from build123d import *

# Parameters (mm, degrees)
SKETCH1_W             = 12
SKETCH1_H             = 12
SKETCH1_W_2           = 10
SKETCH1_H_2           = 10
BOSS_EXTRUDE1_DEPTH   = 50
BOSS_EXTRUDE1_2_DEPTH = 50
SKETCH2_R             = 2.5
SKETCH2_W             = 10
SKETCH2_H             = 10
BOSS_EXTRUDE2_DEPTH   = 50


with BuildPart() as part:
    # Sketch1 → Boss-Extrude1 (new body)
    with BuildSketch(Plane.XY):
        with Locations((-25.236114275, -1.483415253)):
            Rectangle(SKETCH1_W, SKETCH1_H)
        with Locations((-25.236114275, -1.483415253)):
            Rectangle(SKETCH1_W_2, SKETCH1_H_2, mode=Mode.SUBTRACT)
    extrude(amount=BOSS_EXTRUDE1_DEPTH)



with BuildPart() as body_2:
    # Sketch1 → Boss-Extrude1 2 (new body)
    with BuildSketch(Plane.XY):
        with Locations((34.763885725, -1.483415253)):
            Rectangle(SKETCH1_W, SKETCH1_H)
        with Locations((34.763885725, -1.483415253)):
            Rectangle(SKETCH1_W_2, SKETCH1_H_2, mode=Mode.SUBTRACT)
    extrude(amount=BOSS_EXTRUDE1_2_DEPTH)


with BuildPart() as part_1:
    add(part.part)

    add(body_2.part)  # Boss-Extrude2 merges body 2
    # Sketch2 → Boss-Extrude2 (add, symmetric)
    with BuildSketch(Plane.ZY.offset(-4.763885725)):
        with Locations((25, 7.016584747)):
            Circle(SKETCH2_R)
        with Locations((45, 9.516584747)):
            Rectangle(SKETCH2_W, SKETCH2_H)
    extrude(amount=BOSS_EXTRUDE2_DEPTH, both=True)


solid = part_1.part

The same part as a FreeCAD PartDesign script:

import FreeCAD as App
import Part
import Sketcher
from FreeCAD import Vector


def add_polygon(sketch, points):
    """Adds a closed chain of lines whose ends are joined by coincident constraints."""
    first, n = sketch.GeometryCount, len(points)
    for a, b in zip(points, points[1:] + points[:1]):
        sketch.addGeometry(Part.LineSegment(App.Vector(*a, 0), App.Vector(*b, 0)), False)
    for i in range(n):
        sketch.addConstraint(Sketcher.Constraint("Coincident", first + i, 2, first + (i + 1) % n, 1))

doc = App.newDocument("Part")
body = doc.addObject("PartDesign::Body", "Body")

# Sketch on XY plane
sketch1 = body.newObject("Sketcher::SketchObject", "Sketch")
sketch1.AttachmentSupport = (doc.getObject("XY_Plane"), [""])
sketch1.MapMode = "FlatFace"
add_polygon(sketch1, [(-31.236114, 4.516585), (-31.236114, -7.483415), (-19.236114, -7.483415), (-19.236114, 4.516585)])  # lines 0-3
add_polygon(sketch1, [(-20.236114, -6.483415), (-30.236114, -6.483415), (-30.236114, 3.516585), (-20.236114, 3.516585)])  # lines 4-7
sketch1.addConstraint(Sketcher.Constraint("Vertical", 0))
sketch1.addConstraint(Sketcher.Constraint("Horizontal", 1))
sketch1.addConstraint(Sketcher.Constraint("Vertical", 2))
sketch1.addConstraint(Sketcher.Constraint("Horizontal", 3))
sketch1.addConstraint(Sketcher.Constraint("Horizontal", 4))
sketch1.addConstraint(Sketcher.Constraint("Vertical", 5))
sketch1.addConstraint(Sketcher.Constraint("Horizontal", 6))
sketch1.addConstraint(Sketcher.Constraint("Vertical", 7))
sketch1.addConstraint(Sketcher.Constraint("Equal", 3, 0))
sketch1.addConstraint(Sketcher.Constraint("Equal", 6, 5))
sketch1.addConstraint(Sketcher.Constraint("DistanceX", 1, 1, 1, 2, 12.0))
sketch1.addConstraint(Sketcher.Constraint("DistanceX", 4, 2, 4, 1, 10.0))
sketch1.addConstraint(Sketcher.Constraint("DistanceX", 0, 2, 4, 2, 1.0))
sketch1.addConstraint(Sketcher.Constraint("DistanceY", 0, 2, 4, 2, 1.0))
sketch1.addConstraint(Sketcher.Constraint("DistanceX", 0, 2, -1, 1, 31.236114))
sketch1.addConstraint(Sketcher.Constraint("DistanceY", 0, 2, -1, 1, 7.483415))
pad1 = body.newObject("PartDesign::Pad", "Pad")
pad1.Profile = sketch1
pad1.Length = 50
body2 = doc.addObject("PartDesign::Body", "Body001")

# Sketch on XY plane
sketch2 = body2.newObject("Sketcher::SketchObject", "Sketch001")
sketch2.AttachmentSupport = (doc.getObject("XY_Plane001"), [""])
sketch2.MapMode = "FlatFace"
add_polygon(sketch2, [(28.763886, 4.516585), (28.763886, -7.483415), (40.763886, -7.483415), (40.763886, 4.516585)])  # lines 0-3
add_polygon(sketch2, [(39.763886, -6.483415), (29.763886, -6.483415), (29.763886, 3.516585), (39.763886, 3.516585)])  # lines 4-7
sketch2.addConstraint(Sketcher.Constraint("Vertical", 0))
sketch2.addConstraint(Sketcher.Constraint("Horizontal", 1))
sketch2.addConstraint(Sketcher.Constraint("Vertical", 2))
sketch2.addConstraint(Sketcher.Constraint("Horizontal", 3))
sketch2.addConstraint(Sketcher.Constraint("Horizontal", 4))
sketch2.addConstraint(Sketcher.Constraint("Vertical", 5))
sketch2.addConstraint(Sketcher.Constraint("Horizontal", 6))
sketch2.addConstraint(Sketcher.Constraint("Vertical", 7))
sketch2.addConstraint(Sketcher.Constraint("Equal", 3, 0))
sketch2.addConstraint(Sketcher.Constraint("Equal", 6, 5))
sketch2.addConstraint(Sketcher.Constraint("DistanceX", 1, 1, 1, 2, 12.0))
sketch2.addConstraint(Sketcher.Constraint("DistanceX", 4, 2, 4, 1, 10.0))
sketch2.addConstraint(Sketcher.Constraint("DistanceX", 0, 2, 4, 2, 1.0))
sketch2.addConstraint(Sketcher.Constraint("DistanceY", 0, 2, 4, 2, 1.0))
sketch2.addConstraint(Sketcher.Constraint("DistanceX", -1, 1, 0, 2, 28.763886))
sketch2.addConstraint(Sketcher.Constraint("DistanceY", 0, 2, -1, 1, 7.483415))
pad2 = body2.newObject("PartDesign::Pad", "Pad001")
pad2.Profile = sketch2
pad2.Length = 50
body.AllowCompound = True
doc.recompute()

boolean = body.newObject("PartDesign::Boolean", "Boolean")
boolean.Type = "Fuse"
boolean.addObjects([body2])

# Sketch on YZ plane
sketch3 = body.newObject("Sketcher::SketchObject", "Sketch002")
sketch3.AttachmentSupport = (doc.getObject("YZ_Plane"), [""])
sketch3.MapMode = "FlatFace"
sketch3.AttachmentOffset = App.Placement(Vector(0, 0, 4.763886), App.Rotation())
sketch3.addGeometry(Part.Circle(Vector(7.016585, 25, 0), Vector(0, 0, 1), 2.5), False)  # 0
add_polygon(sketch3, [(14.516585, 40), (4.516585, 40), (4.516585, 50), (14.516585, 50)])  # lines 1-4
sketch3.addConstraint(Sketcher.Constraint("Horizontal", 1))
sketch3.addConstraint(Sketcher.Constraint("Vertical", 2))
sketch3.addConstraint(Sketcher.Constraint("Horizontal", 3))
sketch3.addConstraint(Sketcher.Constraint("Vertical", 4))
sketch3.addConstraint(Sketcher.Constraint("Equal", 3, 2))
sketch3.addConstraint(Sketcher.Constraint("Diameter", 0, 5.0))
sketch3.addConstraint(Sketcher.Constraint("DistanceX", 1, 2, 1, 1, 10.0))
sketch3.addConstraint(Sketcher.Constraint("DistanceY", -1, 1, 0, 3, 25.0))
sketch3.addConstraint(Sketcher.Constraint("DistanceY", -1, 1, 1, 2, 40.0))
sketch3.addConstraint(Sketcher.Constraint("DistanceX", 1, 2, 0, 3, 2.5))
sketch3.addConstraint(Sketcher.Constraint("DistanceX", -1, 1, 0, 3, 7.016585))
pad3 = body.newObject("PartDesign::Pad", "Pad002")
pad3.Profile = sketch3
pad3.Length = 100
pad3.Midplane = True

doc.recompute()
